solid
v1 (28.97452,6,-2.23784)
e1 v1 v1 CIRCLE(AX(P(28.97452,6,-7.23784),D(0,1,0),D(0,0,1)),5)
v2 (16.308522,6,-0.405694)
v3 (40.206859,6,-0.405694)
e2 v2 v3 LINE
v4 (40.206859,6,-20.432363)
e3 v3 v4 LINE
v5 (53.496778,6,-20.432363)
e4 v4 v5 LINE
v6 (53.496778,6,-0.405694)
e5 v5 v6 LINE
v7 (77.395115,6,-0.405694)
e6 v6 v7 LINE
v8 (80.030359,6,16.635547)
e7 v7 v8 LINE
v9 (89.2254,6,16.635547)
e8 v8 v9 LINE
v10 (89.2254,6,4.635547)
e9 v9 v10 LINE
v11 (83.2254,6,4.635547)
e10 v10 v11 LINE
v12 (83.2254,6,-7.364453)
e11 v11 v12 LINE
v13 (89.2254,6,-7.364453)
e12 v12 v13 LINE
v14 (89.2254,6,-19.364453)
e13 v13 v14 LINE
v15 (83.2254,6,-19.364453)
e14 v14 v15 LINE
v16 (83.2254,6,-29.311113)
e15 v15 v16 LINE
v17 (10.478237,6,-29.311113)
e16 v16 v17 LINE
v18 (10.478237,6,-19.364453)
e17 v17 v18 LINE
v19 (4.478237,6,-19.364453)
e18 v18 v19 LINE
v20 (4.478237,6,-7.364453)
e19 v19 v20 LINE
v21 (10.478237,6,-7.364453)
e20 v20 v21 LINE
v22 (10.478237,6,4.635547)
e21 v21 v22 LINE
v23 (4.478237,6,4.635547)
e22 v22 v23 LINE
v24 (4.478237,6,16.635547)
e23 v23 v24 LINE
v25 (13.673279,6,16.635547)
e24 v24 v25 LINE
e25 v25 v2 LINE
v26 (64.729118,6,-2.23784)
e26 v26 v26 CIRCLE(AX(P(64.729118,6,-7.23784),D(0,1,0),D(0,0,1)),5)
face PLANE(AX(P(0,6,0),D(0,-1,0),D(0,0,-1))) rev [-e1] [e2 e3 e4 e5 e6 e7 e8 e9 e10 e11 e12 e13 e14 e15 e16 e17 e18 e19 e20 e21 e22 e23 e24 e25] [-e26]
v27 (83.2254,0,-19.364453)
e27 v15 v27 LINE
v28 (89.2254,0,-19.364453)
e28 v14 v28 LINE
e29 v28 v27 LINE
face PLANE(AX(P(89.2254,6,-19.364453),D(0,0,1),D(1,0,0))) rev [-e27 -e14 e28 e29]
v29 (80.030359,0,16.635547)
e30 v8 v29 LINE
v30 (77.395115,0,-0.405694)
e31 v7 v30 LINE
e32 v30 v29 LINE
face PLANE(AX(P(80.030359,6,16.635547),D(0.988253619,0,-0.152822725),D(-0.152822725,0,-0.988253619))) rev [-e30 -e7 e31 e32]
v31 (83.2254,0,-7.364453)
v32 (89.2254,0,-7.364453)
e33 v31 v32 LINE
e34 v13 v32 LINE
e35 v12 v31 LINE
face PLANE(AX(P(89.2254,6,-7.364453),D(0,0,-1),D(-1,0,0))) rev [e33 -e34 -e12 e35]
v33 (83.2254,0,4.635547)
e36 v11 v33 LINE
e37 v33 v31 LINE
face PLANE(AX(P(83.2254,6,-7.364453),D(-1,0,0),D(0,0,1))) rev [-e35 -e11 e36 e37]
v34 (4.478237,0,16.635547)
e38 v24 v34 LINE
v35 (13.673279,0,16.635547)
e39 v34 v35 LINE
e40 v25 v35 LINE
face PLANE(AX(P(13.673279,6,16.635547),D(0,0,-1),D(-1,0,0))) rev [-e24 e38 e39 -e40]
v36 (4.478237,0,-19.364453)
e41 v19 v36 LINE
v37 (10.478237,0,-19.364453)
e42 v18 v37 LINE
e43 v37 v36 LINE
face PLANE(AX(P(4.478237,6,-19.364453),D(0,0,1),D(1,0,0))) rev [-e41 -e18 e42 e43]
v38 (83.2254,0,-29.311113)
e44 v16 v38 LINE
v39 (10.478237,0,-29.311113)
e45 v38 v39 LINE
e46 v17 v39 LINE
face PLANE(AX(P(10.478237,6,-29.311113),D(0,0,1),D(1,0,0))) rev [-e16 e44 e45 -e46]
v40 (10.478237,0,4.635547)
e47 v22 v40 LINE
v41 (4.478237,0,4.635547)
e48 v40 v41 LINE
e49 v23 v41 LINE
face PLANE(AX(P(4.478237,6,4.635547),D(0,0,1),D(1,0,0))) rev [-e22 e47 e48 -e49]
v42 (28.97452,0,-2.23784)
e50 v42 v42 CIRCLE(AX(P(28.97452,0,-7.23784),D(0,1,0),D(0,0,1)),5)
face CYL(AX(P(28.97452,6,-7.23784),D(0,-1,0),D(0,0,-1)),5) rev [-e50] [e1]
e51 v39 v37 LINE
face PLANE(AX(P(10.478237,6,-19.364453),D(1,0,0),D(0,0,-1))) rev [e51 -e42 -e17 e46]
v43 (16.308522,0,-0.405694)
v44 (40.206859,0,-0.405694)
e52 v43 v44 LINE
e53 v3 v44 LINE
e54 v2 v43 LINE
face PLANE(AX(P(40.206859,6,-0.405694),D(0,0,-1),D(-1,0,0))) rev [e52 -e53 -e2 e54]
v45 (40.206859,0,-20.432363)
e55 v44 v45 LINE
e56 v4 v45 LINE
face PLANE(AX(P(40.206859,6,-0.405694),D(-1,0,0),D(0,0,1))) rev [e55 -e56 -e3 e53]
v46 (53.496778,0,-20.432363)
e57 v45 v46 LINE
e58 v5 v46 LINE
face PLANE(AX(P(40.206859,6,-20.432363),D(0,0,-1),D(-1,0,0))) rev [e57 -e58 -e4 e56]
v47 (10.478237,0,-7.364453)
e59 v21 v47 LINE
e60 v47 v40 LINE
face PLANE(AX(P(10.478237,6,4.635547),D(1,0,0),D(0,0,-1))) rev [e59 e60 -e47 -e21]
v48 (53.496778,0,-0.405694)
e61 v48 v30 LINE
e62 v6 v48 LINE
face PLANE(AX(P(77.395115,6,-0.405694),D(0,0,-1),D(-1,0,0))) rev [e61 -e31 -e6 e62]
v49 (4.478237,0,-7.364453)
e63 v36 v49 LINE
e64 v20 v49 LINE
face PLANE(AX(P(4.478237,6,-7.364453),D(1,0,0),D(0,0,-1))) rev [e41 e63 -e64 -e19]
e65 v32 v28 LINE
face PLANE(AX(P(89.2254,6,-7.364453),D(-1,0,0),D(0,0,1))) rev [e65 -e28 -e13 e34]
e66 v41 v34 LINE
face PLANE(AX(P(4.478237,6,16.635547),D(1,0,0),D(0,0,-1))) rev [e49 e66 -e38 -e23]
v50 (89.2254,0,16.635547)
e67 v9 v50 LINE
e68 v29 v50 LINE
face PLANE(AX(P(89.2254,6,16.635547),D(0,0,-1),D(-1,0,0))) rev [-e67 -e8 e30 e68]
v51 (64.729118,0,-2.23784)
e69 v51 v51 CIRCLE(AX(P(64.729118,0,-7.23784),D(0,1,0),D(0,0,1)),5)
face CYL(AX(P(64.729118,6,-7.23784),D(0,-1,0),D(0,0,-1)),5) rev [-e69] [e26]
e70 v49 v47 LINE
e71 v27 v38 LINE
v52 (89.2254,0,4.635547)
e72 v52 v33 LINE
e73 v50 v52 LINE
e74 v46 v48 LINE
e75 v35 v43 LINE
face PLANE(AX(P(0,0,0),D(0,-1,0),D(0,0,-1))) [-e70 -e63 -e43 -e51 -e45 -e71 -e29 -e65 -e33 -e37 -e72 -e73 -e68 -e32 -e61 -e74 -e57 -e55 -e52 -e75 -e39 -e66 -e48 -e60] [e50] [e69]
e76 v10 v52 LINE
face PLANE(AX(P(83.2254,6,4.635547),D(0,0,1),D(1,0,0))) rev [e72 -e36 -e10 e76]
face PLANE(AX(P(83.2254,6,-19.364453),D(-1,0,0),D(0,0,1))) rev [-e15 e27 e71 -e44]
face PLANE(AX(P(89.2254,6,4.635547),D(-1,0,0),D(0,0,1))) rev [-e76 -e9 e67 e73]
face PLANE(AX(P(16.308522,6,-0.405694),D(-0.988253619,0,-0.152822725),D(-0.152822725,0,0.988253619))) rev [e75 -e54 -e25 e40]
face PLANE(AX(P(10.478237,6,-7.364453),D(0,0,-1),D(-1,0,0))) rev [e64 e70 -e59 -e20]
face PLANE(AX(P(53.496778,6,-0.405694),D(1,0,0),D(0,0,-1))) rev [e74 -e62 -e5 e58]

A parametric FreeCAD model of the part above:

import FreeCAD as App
import Part
import Sketcher
Q = App.Units.Quantity


def add_polygon(sketch, points):
    """Adds a closed chain of lines whose ends are joined by coincident constraints."""
    first, n = sketch.GeometryCount, len(points)
    for a, b in zip(points, points[1:] + points[:1]):
        sketch.addGeometry(Part.LineSegment(App.Vector(*a, 0), App.Vector(*b, 0)), False)
    for i in range(n):
        sketch.addConstraint(Sketcher.Constraint("Coincident", first + i, 2, first + (i + 1) % n, 1))

doc = App.newDocument("Part")
params = doc.addObject("Spreadsheet::Sheet", "Params")
for row, (alias, value) in enumerate([
    ("sketch1_diameter", "10 mm"),
    ("sketch1_width", "6 mm"),
    ("sketch1_height", "12 mm"),
    ("pad1_length", "6 mm"),
], start=1):
    params.set(f"A{row}", alias)
    params.set(f"B{row}", "=" + value)
    params.setAlias(f"B{row}", alias)

body = doc.addObject("PartDesign::Body", "Body")

# Sketch on XZ plane
sketch1 = doc.addObject("Sketcher::SketchObject", "Sketch")
body.addObject(sketch1)
sketch1.AttachmentSupport = (doc.XZ_Plane, [""])
sketch1.MapMode = "FlatFace"
add_polygon(sketch1, [(4, 17), (14, 17), (16, 0), (40, 0), (40, -20), (53, -20), (53, 0), (77, 0), (80, 17), (89, 17), (89, 5), (83, 5), (83, -7), (89, -7), (89, -19), (83, -19), (83, -29), (10, -29), (10, -19), (4, -19), (4, -7), (10, -7), (10, 5), (4, 5)])  # lines 0-23
sketch1.addGeometry(Part.Circle(App.Vector(65, -7, 0), App.Vector(0, 0, 1), 5), False)  # 24
sketch1.addGeometry(Part.Circle(App.Vector(29, -7, 0), App.Vector(0, 0, 1), 5), False)  # 25
sketch1.addConstraint([
    Sketcher.Constraint("Horizontal", 0),
    Sketcher.Constraint("Horizontal", 2),
    Sketcher.Constraint("Vertical", 3),
    Sketcher.Constraint("Horizontal", 4),
    Sketcher.Constraint("Vertical", 5),
    Sketcher.Constraint("Horizontal", 6),
    Sketcher.Constraint("Horizontal", 8),
    Sketcher.Constraint("Vertical", 9),
    Sketcher.Constraint("Horizontal", 10),
    Sketcher.Constraint("Vertical", 11),
    Sketcher.Constraint("Horizontal", 12),
    Sketcher.Constraint("Vertical", 13),
    Sketcher.Constraint("Horizontal", 14),
    Sketcher.Constraint("Vertical", 15),
    Sketcher.Constraint("Horizontal", 16),
    Sketcher.Constraint("Vertical", 17),
    Sketcher.Constraint("Horizontal", 18),
    Sketcher.Constraint("Vertical", 19),
    Sketcher.Constraint("Horizontal", 20),
    Sketcher.Constraint("Vertical", 21),
    Sketcher.Constraint("Horizontal", 22),
    Sketcher.Constraint("Vertical", 23),
    Sketcher.Constraint("Equal", 24, 25),
    Sketcher.Constraint("Horizontal", 24, 3, 25, 3),
    Sketcher.Constraint("Horizontal", 2, 2, 5, 2),
    Sketcher.Constraint("Horizontal", 0, 2, 7, 2),
    Sketcher.Constraint("Horizontal", 14, 2, 17, 2),
    Sketcher.Constraint("Horizontal", 12, 2, 19, 2),
    Sketcher.Constraint("Horizontal", 10, 2, 21, 2),
    Sketcher.Constraint("Vertical", 9, 2, 12, 2),
    Sketcher.Constraint("Vertical", 11, 2, 14, 2),
    Sketcher.Constraint("Vertical", 17, 2, 20, 2),
    Sketcher.Constraint("Vertical", 19, 2, 22, 2),
    Sketcher.Constraint("Equal", 2, 6),
    Sketcher.Constraint("Equal", 0, 8),
    Sketcher.Constraint("Equal", 14, 18),
    Sketcher.Constraint("Equal", 9, 11),
    Sketcher.Constraint("Equal", 11, 13),
    Sketcher.Constraint("Equal", 1, 7),
    Sketcher.Constraint("Diameter", 24, Q("10 mm")),
    Sketcher.Constraint("DistanceX", 10, 2, 10, 1, Q("6 mm")),
    Sketcher.Constraint("DistanceY", 9, 2, 9, 1, Q("12 mm")),
    Sketcher.Constraint("DistanceX", 0, 1, 0, 2, Q("9.195042 mm")),
    Sketcher.Constraint("DistanceX", 4, 1, 4, 2, Q("13.289919 mm")),
    Sketcher.Constraint("DistanceY", 3, 2, 3, 1, Q("20.026669 mm")),
    Sketcher.Constraint("DistanceY", 15, 2, 15, 1, Q("9.94666 mm")),
    Sketcher.Constraint("DistanceX", -1, 1, 8, 2, Q("89.2254 mm")),
    Sketcher.Constraint("DistanceX", 25, 3, 24, 3, Q("35.754598 mm")),
    Sketcher.Constraint("DistanceX", 2, 2, 7, 2, Q("39.823499 mm")),
    Sketcher.Constraint("DistanceX", 2, 1, 2, 2, Q("23.898337 mm")),
    Sketcher.Constraint("DistanceY", 24, 3, -1, 1, Q("7.23784 mm")),
    Sketcher.Constraint("DistanceX", -1, 1, 25, 3, Q("28.97452 mm")),
    Sketcher.Constraint("DistanceY", 1, 2, 0, 2, Q("17.041241 mm")),
    Sketcher.Constraint("DistanceY", -1, 1, 0, 2, Q("16.635547 mm")),
])
sketch1.setExpression("Constraints[63]", "Params.sketch1_diameter")
sketch1.setExpression("Constraints[64]", "Params.sketch1_width")
sketch1.setExpression("Constraints[65]", "Params.sketch1_height")
pad1 = doc.addObject("PartDesign::Pad", "Pad")
body.addObject(pad1)
pad1.Profile = sketch1
pad1.setExpression("Length", "Params.pad1_length")
pad1.Reversed = True

doc.recompute()
